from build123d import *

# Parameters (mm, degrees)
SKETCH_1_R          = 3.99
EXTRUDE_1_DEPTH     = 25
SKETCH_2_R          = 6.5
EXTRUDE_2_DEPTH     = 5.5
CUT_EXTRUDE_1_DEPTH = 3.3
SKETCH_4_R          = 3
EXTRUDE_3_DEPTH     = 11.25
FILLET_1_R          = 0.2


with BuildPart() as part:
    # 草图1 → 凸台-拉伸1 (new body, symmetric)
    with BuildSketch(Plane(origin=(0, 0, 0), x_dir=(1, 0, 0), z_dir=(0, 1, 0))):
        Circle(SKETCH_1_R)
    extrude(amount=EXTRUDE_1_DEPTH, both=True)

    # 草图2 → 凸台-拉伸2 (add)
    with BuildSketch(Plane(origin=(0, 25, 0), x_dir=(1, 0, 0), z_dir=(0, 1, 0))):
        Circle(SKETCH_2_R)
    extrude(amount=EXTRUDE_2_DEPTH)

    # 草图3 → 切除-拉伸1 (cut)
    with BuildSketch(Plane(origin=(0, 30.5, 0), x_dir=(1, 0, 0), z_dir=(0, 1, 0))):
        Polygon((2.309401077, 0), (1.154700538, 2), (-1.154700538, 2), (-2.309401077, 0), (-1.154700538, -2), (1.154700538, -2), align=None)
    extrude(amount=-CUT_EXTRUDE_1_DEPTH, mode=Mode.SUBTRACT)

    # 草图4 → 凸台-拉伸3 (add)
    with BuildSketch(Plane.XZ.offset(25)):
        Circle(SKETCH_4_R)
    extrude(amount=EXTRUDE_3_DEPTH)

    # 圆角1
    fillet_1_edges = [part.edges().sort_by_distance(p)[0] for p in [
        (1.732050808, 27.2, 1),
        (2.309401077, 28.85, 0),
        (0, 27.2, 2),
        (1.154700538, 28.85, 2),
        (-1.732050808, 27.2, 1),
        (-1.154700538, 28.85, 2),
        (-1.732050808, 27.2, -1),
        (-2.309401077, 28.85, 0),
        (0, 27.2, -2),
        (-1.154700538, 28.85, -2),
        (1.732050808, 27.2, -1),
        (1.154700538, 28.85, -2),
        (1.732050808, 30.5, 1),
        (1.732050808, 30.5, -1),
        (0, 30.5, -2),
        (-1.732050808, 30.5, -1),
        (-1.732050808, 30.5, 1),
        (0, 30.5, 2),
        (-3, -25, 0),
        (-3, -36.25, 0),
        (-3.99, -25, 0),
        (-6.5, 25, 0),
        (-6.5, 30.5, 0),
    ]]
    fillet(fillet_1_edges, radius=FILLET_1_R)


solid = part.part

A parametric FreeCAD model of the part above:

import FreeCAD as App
import Part
import Sketcher

V = App.Vector
Q = App.Units.Quantity


def edges_at(feature, points):
    """Names of the edges that pass closest to the given points."""
    edges = feature.Shape.Edges
    near = lambda p: min(range(len(edges)), key=lambda i: edges[i].distToShape(Part.Vertex(*p))[0])
    return sorted({f"Edge{near(p) + 1}" for p in points})

doc = App.newDocument("Part")
body = doc.addObject("PartDesign::Body", "Body")

sketch1 = doc.addObject("Sketcher::SketchObject", "Sketch")
body.addObject(sketch1)
sketch1.AttachmentSupport = (doc.XZ_Plane, [""])
sketch1.MapMode = "FlatFace"
sketch1.addGeometry(Part.Circle(V(0, 0, 0), V(0, 0, 1), 3.99), False)
sketch1.addConstraint(Sketcher.Constraint("Coincident", 0, 3, -1, 1))
sketch1.addConstraint(Sketcher.Constraint("Diameter", 0, Q("7.98 mm")))
pad1 = doc.addObject("PartDesign::Pad", "Pad")
body.addObject(pad1)
pad1.Profile = sketch1
pad1.Length = 50
pad1.Midplane = True

sketch2 = doc.addObject("Sketcher::SketchObject", "Sketch001")
body.addObject(sketch2)
sketch2.AttachmentSupport = (doc.XZ_Plane, [""])
sketch2.MapMode = "FlatFace"
sketch2.AttachmentOffset = App.Placement(V(0, 0, -25), App.Rotation())
sketch2.addGeometry(Part.Circle(V(0, 0, 0), V(0, 0, 1), 6.5), False)
sketch2.addConstraint(Sketcher.Constraint("Coincident", 0, 3, -1, 1))
sketch2.addConstraint(Sketcher.Constraint("Diameter", 0, Q("13 mm")))
pad2 = doc.addObject("PartDesign::Pad", "Pad001")
body.addObject(pad2)
pad2.Profile = sketch2
pad2.Length = 5.5
pad2.Reversed = True

sketch3 = doc.addObject("Sketcher::SketchObject", "Sketch002")
body.addObject(sketch3)
sketch3.AttachmentSupport = (doc.XZ_Plane, [""])
sketch3.MapMode = "FlatFace"
sketch3.AttachmentOffset = App.Placement(V(0, 0, -30.5), App.Rotation())
sketch3.addGeometry(Part.LineSegment(V(2.309401, 0, 0), V(1.154701, -2, 0)), False)
sketch3.addGeometry(Part.LineSegment(V(1.154701, -2, 0), V(-1.154701, -2, 0)), False)
sketch3.addGeometry(Part.LineSegment(V(-1.154701, -2, 0), V(-2.309401, 0, 0)), False)
sketch3.addGeometry(Part.LineSegment(V(-2.309401, 0, 0), V(-1.154701, 2, 0)), False)
sketch3.addGeometry(Part.LineSegment(V(-1.154701, 2, 0), V(1.154701, 2, 0)), False)
sketch3.addGeometry(Part.LineSegment(V(1.154701, 2, 0), V(2.309401, 0, 0)), False)
sketch3.addConstraint(Sketcher.Constraint("Coincident", 0, 2, 1, 1))
sketch3.addConstraint(Sketcher.Constraint("Coincident", 1, 2, 2, 1))
sketch3.addConstraint(Sketcher.Constraint("Coincident", 2, 2, 3, 1))
sketch3.addConstraint(Sketcher.Constraint("Coincident", 3, 2, 4, 1))
sketch3.addConstraint(Sketcher.Constraint("Coincident", 4, 2, 5, 1))
sketch3.addConstraint(Sketcher.Constraint("Coincident", 5, 2, 0, 1))
sketch3.addConstraint(Sketcher.Constraint("Horizontal", 1))
sketch3.addConstraint(Sketcher.Constraint("Horizontal", 4))
sketch3.addConstraint(Sketcher.Constraint("Symmetric", 0, 2, 3, 2, -1, 1))
sketch3.addConstraint(Sketcher.Constraint("Symmetric", 2, 2, 5, 2, -1, 1))
sketch3.addConstraint(Sketcher.Constraint("PointOnObject", 2, 2, -1))
sketch3.addConstraint(Sketcher.Constraint("Parallel", 2, 5))
sketch3.addConstraint(Sketcher.Constraint("Vertical", 1, 2, 3, 2))
sketch3.addConstraint(Sketcher.Constraint("Angle", 0, Q("-120 deg")))
sketch3.addConstraint(Sketcher.Constraint("DistanceY", 0, 2, -1, 1, Q("2 mm")))
sketch3.addConstraint(Sketcher.Constraint("DistanceX", 1, 2, 1, 1, Q("2.309401 mm")))
pocket1 = doc.addObject("PartDesign::Pocket", "Pocket")
body.addObject(pocket1)
pocket1.Profile = sketch3
pocket1.Length = 3.3
pocket1.Reversed = True

sketch4 = doc.addObject("Sketcher::SketchObject", "Sketch003")
body.addObject(sketch4)
sketch4.AttachmentSupport = (doc.XZ_Plane, [""])
sketch4.MapMode = "FlatFace"
sketch4.AttachmentOffset = App.Placement(V(0, 0, 25), App.Rotation())
sketch4.addGeometry(Part.Circle(V(0, 0, 0), V(0, 0, 1), 3), False)
sketch4.addConstraint(Sketcher.Constraint("Coincident", 0, 3, -1, 1))
sketch4.addConstraint(Sketcher.Constraint("Diameter", 0, Q("6 mm")))
pad3 = doc.addObject("PartDesign::Pad", "Pad002")
body.addObject(pad3)
pad3.Profile = sketch4
pad3.Length = 11.25
doc.recompute()

fillet = doc.addObject("PartDesign::Fillet", "Fillet")
body.addObject(fillet)
fillet.Base = (pad3, edges_at(pad3, [
    (1.732, 27.2, 1),
    (2.309, 28.85, 0),
    (0, 27.2, 2),
    (1.155, 28.85, 2),
    (-1.732, 27.2, 1),
    (-1.155, 28.85, 2),
    (-1.732, 27.2, -1),
    (-2.309, 28.85, 0),
    (0, 27.2, -2),
    (-1.155, 28.85, -2),
    (1.732, 27.2, -1),
    (1.155, 28.85, -2),
    (1.732, 30.5, 1),
    (1.732, 30.5, -1),
    (0, 30.5, -2),
    (-1.732, 30.5, -1),
    (-1.732, 30.5, 1),
    (0, 30.5, 2),
    (-3, -25, 0),
    (-3, -36.25, 0),
    (-3.99, -25, 0),
    (-6.5, 25, 0),
    (-6.5, 30.5, 0),
]))
fillet.Radius = 0.2

doc.recompute()
